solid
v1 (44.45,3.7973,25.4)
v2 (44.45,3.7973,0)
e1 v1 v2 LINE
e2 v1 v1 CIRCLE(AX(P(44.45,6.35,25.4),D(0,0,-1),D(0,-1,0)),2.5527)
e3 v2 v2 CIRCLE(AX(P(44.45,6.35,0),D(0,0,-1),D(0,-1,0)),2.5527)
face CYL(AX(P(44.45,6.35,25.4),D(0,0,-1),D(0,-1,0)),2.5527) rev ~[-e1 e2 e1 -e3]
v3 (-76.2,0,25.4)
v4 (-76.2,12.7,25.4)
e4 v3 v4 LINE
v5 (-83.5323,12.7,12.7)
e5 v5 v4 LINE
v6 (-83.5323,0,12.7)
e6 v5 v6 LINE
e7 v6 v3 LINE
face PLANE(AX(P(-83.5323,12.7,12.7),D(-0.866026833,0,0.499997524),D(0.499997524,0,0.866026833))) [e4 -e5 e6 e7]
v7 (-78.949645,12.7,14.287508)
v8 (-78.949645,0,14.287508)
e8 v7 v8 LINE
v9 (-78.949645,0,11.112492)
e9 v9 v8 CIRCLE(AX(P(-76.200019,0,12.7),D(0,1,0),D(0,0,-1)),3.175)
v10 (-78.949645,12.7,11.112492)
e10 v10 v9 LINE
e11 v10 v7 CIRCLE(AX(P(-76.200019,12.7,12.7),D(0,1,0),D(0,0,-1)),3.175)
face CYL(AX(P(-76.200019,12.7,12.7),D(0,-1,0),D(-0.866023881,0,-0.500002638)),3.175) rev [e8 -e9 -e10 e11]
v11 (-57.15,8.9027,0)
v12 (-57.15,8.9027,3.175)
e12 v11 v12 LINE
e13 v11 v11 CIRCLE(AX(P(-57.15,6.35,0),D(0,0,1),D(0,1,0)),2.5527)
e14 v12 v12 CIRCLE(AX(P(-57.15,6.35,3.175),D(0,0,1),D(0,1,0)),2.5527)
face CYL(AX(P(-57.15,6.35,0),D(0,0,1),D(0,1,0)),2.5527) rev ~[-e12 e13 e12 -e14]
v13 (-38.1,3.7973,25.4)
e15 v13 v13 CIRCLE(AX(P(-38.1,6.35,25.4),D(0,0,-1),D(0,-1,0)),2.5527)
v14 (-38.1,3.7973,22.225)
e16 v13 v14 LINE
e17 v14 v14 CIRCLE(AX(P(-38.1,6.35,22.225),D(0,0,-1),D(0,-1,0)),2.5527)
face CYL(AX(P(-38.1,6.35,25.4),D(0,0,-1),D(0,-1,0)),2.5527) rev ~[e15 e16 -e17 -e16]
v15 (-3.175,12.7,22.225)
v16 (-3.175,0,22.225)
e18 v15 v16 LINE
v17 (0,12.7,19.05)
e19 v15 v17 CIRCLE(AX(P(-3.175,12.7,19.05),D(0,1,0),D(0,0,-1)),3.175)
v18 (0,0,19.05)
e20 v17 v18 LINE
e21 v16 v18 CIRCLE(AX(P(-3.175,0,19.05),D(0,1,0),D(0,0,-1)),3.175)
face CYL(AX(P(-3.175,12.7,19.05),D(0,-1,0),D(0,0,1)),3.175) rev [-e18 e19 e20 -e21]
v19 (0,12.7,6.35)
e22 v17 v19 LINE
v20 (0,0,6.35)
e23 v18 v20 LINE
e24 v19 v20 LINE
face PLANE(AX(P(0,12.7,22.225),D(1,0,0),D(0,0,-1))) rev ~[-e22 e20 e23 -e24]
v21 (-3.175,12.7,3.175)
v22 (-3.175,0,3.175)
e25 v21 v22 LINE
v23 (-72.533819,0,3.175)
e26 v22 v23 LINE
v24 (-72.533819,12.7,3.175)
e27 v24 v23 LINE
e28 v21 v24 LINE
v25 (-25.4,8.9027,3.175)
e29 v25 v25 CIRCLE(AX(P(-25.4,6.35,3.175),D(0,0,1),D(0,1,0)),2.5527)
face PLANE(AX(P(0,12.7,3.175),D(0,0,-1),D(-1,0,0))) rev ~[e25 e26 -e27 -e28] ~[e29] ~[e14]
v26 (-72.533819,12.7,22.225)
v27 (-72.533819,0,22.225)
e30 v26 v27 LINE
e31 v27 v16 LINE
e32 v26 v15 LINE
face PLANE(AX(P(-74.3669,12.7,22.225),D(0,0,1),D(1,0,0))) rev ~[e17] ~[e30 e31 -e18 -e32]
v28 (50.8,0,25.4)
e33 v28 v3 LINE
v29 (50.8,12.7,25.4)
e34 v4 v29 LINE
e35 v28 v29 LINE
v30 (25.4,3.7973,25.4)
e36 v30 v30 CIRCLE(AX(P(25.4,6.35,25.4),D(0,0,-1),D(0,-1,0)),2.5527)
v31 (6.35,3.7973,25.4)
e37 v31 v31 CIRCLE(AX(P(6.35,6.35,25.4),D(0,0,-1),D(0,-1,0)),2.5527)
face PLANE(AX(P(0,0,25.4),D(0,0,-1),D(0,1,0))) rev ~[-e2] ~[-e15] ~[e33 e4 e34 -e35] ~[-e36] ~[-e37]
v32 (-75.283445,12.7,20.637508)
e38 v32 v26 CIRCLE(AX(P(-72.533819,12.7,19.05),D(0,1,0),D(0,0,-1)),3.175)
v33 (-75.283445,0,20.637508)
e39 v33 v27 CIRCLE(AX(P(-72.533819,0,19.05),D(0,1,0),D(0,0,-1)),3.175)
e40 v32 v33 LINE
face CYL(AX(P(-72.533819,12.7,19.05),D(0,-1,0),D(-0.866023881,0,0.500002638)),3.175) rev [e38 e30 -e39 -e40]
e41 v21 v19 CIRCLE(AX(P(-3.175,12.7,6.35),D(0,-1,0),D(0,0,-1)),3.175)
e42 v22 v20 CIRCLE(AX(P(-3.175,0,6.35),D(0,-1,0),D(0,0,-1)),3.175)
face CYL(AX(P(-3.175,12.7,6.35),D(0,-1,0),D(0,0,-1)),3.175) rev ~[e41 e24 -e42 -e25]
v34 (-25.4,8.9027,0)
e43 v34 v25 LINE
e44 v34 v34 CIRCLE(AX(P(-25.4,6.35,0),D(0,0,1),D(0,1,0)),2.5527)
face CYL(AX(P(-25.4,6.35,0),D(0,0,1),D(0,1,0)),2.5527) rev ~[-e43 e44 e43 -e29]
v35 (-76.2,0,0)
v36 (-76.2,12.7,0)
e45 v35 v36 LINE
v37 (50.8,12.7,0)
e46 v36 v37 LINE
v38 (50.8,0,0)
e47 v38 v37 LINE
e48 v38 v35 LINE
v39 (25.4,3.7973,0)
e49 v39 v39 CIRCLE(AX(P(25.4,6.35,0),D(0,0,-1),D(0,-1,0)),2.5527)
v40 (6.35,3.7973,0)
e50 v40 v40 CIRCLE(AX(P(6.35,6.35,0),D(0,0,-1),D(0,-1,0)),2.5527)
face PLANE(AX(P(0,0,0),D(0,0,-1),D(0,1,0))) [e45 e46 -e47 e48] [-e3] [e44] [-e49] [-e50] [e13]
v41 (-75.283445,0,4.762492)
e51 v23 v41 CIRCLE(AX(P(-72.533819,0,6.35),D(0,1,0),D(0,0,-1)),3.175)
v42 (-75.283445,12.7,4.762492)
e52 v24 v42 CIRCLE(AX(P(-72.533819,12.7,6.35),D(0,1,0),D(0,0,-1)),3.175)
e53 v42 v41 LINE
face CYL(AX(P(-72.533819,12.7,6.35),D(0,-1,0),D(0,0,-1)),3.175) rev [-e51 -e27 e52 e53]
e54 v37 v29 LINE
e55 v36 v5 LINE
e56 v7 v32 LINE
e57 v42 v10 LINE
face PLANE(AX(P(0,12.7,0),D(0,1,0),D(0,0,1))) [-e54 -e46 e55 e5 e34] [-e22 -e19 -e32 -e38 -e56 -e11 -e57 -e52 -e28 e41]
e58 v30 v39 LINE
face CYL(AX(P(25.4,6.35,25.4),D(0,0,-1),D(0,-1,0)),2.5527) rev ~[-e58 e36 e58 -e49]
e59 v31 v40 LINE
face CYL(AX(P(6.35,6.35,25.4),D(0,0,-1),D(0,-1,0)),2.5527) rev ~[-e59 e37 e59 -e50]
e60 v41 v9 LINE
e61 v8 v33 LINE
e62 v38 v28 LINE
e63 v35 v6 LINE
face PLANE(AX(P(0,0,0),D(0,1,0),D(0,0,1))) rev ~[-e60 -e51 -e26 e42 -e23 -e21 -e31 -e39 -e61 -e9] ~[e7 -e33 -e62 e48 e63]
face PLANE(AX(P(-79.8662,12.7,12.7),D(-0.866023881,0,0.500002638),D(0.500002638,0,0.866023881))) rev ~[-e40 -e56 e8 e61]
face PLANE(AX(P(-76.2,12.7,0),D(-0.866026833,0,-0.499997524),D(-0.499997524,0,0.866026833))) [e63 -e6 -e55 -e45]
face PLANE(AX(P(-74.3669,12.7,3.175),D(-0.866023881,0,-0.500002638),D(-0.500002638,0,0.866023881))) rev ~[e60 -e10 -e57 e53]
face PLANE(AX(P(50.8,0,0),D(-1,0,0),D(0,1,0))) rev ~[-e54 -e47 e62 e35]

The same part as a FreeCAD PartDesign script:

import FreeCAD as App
import Part
import Sketcher
Q = App.Units.Quantity


def edges_at(feature, points):
    """Names of the edges that pass closest to the given points."""
    edges = feature.Shape.Edges
    near = lambda p: min(range(len(edges)), key=lambda i: edges[i].distToShape(Part.Vertex(*p))[0])
    return sorted({f"Edge{near(p) + 1}" for p in points})

doc = App.newDocument("Part")
body = doc.addObject("PartDesign::Body", "Body")

# Sketch on XY plane
sketch1 = body.newObject("Sketcher::SketchObject", "Sketch")
sketch1.AttachmentSupport = (doc.getObject("XY_Plane"), [""])
sketch1.MapMode = "FlatFace"
sketch1.addGeometry(Part.LineSegment(App.Vector(0, 13, 0), App.Vector(0, 0, 0)), False)
sketch1.addGeometry(Part.LineSegment(App.Vector(0, 0, 0), App.Vector(51, 0, 0)), False)
sketch1.addGeometry(Part.LineSegment(App.Vector(51, 0, 0), App.Vector(51, 13, 0)), False)
sketch1.addGeometry(Part.LineSegment(App.Vector(51, 13, 0), App.Vector(0, 13, 0)), False)
sketch1.addConstraint(Sketcher.Constraint("Coincident", 0, 2, 1, 1))
sketch1.addConstraint(Sketcher.Constraint("Coincident", 1, 2, 2, 1))
sketch1.addConstraint(Sketcher.Constraint("Coincident", 2, 2, 3, 1))
sketch1.addConstraint(Sketcher.Constraint("Coincident", 3, 2, 0, 1))
sketch1.addConstraint(Sketcher.Constraint("Vertical", 0))
sketch1.addConstraint(Sketcher.Constraint("Horizontal", 1))
sketch1.addConstraint(Sketcher.Constraint("Vertical", 2))
sketch1.addConstraint(Sketcher.Constraint("Horizontal", 3))
sketch1.addConstraint(Sketcher.Constraint("Coincident", 0, 2, -1, 1))
sketch1.addConstraint(Sketcher.Constraint("DistanceX", 1, 1, 1, 2, Q("2 in")))
sketch1.addConstraint(Sketcher.Constraint("DistanceY", 0, 2, 0, 1, Q("0.5 in")))
pad1 = body.newObject("PartDesign::Pad", "Pad")
pad1.Profile = sketch1
pad1.Length = Q("1 in")

# Sketch on XY plane
sketch2 = body.newObject("Sketcher::SketchObject", "Sketch001")
sketch2.AttachmentSupport = (doc.getObject("XY_Plane"), [""])
sketch2.MapMode = "FlatFace"
sketch2.AttachmentOffset = App.Placement(App.Vector(0, 0, 1 * 25.4), App.Rotation())
sketch2.addGeometry(Part.Circle(App.Vector(25.4, 6.3, 0), App.Vector(0, 0, 1), 2.6), False)
sketch2.addGeometry(Part.Circle(App.Vector(6.3, 6.3, 0), App.Vector(0, 0, 1), 2.6), False)
sketch2.addGeometry(Part.Circle(App.Vector(44.5, 6.3, 0), App.Vector(0, 0, 1), 2.6), False)
sketch2.addConstraint(Sketcher.Constraint("Equal", 0, 1))
sketch2.addConstraint(Sketcher.Constraint("Equal", 1, 2))
sketch2.addConstraint(Sketcher.Constraint("Horizontal", 0, 3, 1, 3))
sketch2.addConstraint(Sketcher.Constraint("Horizontal", 1, 3, 2, 3))
sketch2.addConstraint(Sketcher.Constraint("Diameter", 0, Q("0.201 in")))
sketch2.addConstraint(Sketcher.Constraint("DistanceX", -1, 1, 0, 3, Q("1 in")))
sketch2.addConstraint(Sketcher.Constraint("DistanceX", 1, 3, 2, 3, Q("1.5 in")))
sketch2.addConstraint(Sketcher.Constraint("DistanceY", -1, 1, 0, 3, Q("0.25 in")))
sketch2.addConstraint(Sketcher.Constraint("DistanceX", -1, 1, 1, 3, Q("0.25 in")))
doc.recompute()
hole = body.newObject("PartDesign::Hole", "Hole")
hole.Profile = sketch2
hole.ThreadType = "None"
hole.Diameter = Q("0.201 in")
hole.DepthType = "ThroughAll"

# Sketch on YZ plane
sketch3 = body.newObject("Sketcher::SketchObject", "Sketch002")
sketch3.AttachmentSupport = (doc.getObject("YZ_Plane"), [""])
sketch3.MapMode = "FlatFace"
sketch3.addGeometry(Part.LineSegment(App.Vector(13, 0, 0), App.Vector(0, 0, 0)), False)
sketch3.addGeometry(Part.LineSegment(App.Vector(0, 0, 0), App.Vector(0, 25, 0)), False)
sketch3.addGeometry(Part.LineSegment(App.Vector(0, 25, 0), App.Vector(13, 25, 0)), False)
sketch3.addGeometry(Part.LineSegment(App.Vector(13, 25, 0), App.Vector(13, 0, 0)), False)
sketch3.addConstraint(Sketcher.Constraint("Coincident", 0, 2, 1, 1))
sketch3.addConstraint(Sketcher.Constraint("Coincident", 1, 2, 2, 1))
sketch3.addConstraint(Sketcher.Constraint("Coincident", 2, 2, 3, 1))
sketch3.addConstraint(Sketcher.Constraint("Coincident", 3, 2, 0, 1))
sketch3.addConstraint(Sketcher.Constraint("Horizontal", 0))
sketch3.addConstraint(Sketcher.Constraint("Vertical", 1))
sketch3.addConstraint(Sketcher.Constraint("Horizontal", 2))
sketch3.addConstraint(Sketcher.Constraint("Vertical", 3))
sketch3.addConstraint(Sketcher.Constraint("Coincident", 0, 2, -1, 1))
sketch3.addConstraint(Sketcher.Constraint("DistanceY", 1, 1, 1, 2, Q("1 in")))
sketch3.addConstraint(Sketcher.Constraint("DistanceX", 0, 2, 0, 1, Q("0.5 in")))
pad2 = body.newObject("PartDesign::Pad", "Pad001")
pad2.Profile = sketch3
pad2.Length = Q("3 in")
pad2.Reversed = True

# Sketch on XZ plane
sketch4 = body.newObject("Sketcher::SketchObject", "Sketch003")
sketch4.AttachmentSupport = (doc.getObject("XZ_Plane"), [""])
sketch4.MapMode = "FlatFace"
sketch4.AttachmentOffset = App.Placement(App.Vector(0, 0, -0.5 * 25.4), App.Rotation())
sketch4.addGeometry(Part.LineSegment(App.Vector(-76, 0, 0), App.Vector(-84, 13, 0)), False)
sketch4.addGeometry(Part.LineSegment(App.Vector(-84, 13, 0), App.Vector(-76, 25, 0)), False)
sketch4.addGeometry(Part.LineSegment(App.Vector(-76, 25, 0), App.Vector(-76, 0, 0)), False)
sketch4.addConstraint(Sketcher.Constraint("Coincident", 0, 2, 1, 1))
sketch4.addConstraint(Sketcher.Constraint("Coincident", 1, 2, 2, 1))
sketch4.addConstraint(Sketcher.Constraint("Coincident", 2, 2, 0, 1))
sketch4.addConstraint(Sketcher.Constraint("Vertical", 2))
sketch4.addConstraint(Sketcher.Constraint("PointOnObject", 2, 2, -1))
sketch4.addConstraint(Sketcher.Constraint("Equal", 0, 1))
sketch4.addConstraint(Sketcher.Constraint("DistanceY", 2, 2, 2, 1, Q("1 in")))
sketch4.addConstraint(Sketcher.Constraint("DistanceX", 1, 2, -1, 1, Q("3 in")))
sketch4.addConstraint(Sketcher.Constraint("Angle", 0, Q("119.9998 deg")))
pad3 = body.newObject("PartDesign::Pad", "Pad002")
pad3.Profile = sketch4
pad3.Length = Q("0.5 in")

# Sketch on XZ plane
sketch5 = body.newObject("Sketcher::SketchObject", "Sketch004")
sketch5.AttachmentSupport = (doc.getObject("XZ_Plane"), [""])
sketch5.MapMode = "FlatFace"
sketch5.AttachmentOffset = App.Placement(App.Vector(0, 0, -0.5 * 25.4), App.Rotation())
sketch5.addGeometry(Part.LineSegment(App.Vector(0, 3, 0), App.Vector(-74, 3, 0)), False)
sketch5.addGeometry(Part.LineSegment(App.Vector(-74, 3, 0), App.Vector(-80, 13, 0)), False)
sketch5.addGeometry(Part.LineSegment(App.Vector(-80, 13, 0), App.Vector(-74, 22, 0)), False)
sketch5.addGeometry(Part.LineSegment(App.Vector(-74, 22, 0), App.Vector(0, 22, 0)), False)
sketch5.addGeometry(Part.LineSegment(App.Vector(0, 22, 0), App.Vector(0, 3, 0)), False)
sketch5.addConstraint(Sketcher.Constraint("Coincident", 0, 2, 1, 1))
sketch5.addConstraint(Sketcher.Constraint("Coincident", 1, 2, 2, 1))
sketch5.addConstraint(Sketcher.Constraint("Coincident", 2, 2, 3, 1))
sketch5.addConstraint(Sketcher.Constraint("Coincident", 3, 2, 4, 1))
sketch5.addConstraint(Sketcher.Constraint("Coincident", 4, 2, 0, 1))
sketch5.addConstraint(Sketcher.Constraint("Horizontal", 0))
sketch5.addConstraint(Sketcher.Constraint("Horizontal", 3))
sketch5.addConstraint(Sketcher.Constraint("Vertical", 4))
sketch5.addConstraint(Sketcher.Constraint("PointOnObject", 3, 2, -2))
sketch5.addConstraint(Sketcher.Constraint("Vertical", 0, 2, 2, 2))
sketch5.addConstraint(Sketcher.Constraint("Equal", 1, 2))
sketch5.addConstraint(Sketcher.Constraint("DistanceY", -1, 1, 0, 2, Q("0.125 in")))
sketch5.addConstraint(Sketcher.Constraint("Angle", 1, Q("120.0002 deg")))
sketch5.addConstraint(Sketcher.Constraint("DistanceY", 4, 2, 4, 1, Q("0.75 in")))
sketch5.addConstraint(Sketcher.Constraint("DistanceX", 0, 2, 0, 1, Q("74.367 mm")))
pocket1 = body.newObject("PartDesign::Pocket", "Pocket")
pocket1.Profile = sketch5
pocket1.Type = "ThroughAll"
pocket1.Reversed = True

# Sketch on XY plane
sketch6 = body.newObject("Sketcher::SketchObject", "Sketch005")
sketch6.AttachmentSupport = (doc.getObject("XY_Plane"), [""])
sketch6.MapMode = "FlatFace"
sketch6.addGeometry(Part.Circle(App.Vector(-57.1, 6.3, 0), App.Vector(0, 0, 1), 2.6), False)
sketch6.addGeometry(Part.Circle(App.Vector(-25.4, 6.3, 0), App.Vector(0, 0, 1), 2.6), False)
sketch6.addConstraint(Sketcher.Constraint("Equal", 0, 1))
sketch6.addConstraint(Sketcher.Constraint("Horizontal", 0, 3, 1, 3))
sketch6.addConstraint(Sketcher.Constraint("Diameter", 0, Q("0.201 in")))
sketch6.addConstraint(Sketcher.Constraint("DistanceX", 1, 3, -1, 1, Q("1 in")))
sketch6.addConstraint(Sketcher.Constraint("DistanceX", 0, 3, -1, 1, Q("2.25 in")))
sketch6.addConstraint(Sketcher.Constraint("DistanceY", -1, 1, 0, 3, Q("0.25 in")))
doc.recompute()
hole2 = body.newObject("PartDesign::Hole", "Hole001")
hole2.Profile = sketch6
hole2.ThreadType = "None"
hole2.Diameter = Q("0.201 in")
hole2.DepthType = "Dimension"
hole2.Depth = Q("0.35 in")
hole2.DrillPoint = "Flat"
hole2.Reversed = True

# Sketch on XY plane
sketch7 = body.newObject("Sketcher::SketchObject", "Sketch006")
sketch7.AttachmentSupport = (doc.getObject("XY_Plane"), [""])
sketch7.MapMode = "FlatFace"
sketch7.AttachmentOffset = App.Placement(App.Vector(0, 0, 1 * 25.4), App.Rotation())
sketch7.addGeometry(Part.Circle(App.Vector(-38.1, 6.3, 0), App.Vector(0, 0, 1), 2.6), False)
sketch7.addConstraint(Sketcher.Constraint("Diameter", 0, Q("0.201 in")))
sketch7.addConstraint(Sketcher.Constraint("DistanceX", 0, 3, -1, 1, Q("1.5 in")))
sketch7.addConstraint(Sketcher.Constraint("DistanceY", -1, 1, 0, 3, Q("0.25 in")))
doc.recompute()
hole3 = body.newObject("PartDesign::Hole", "Hole002")
hole3.Profile = sketch7
hole3.ThreadType = "None"
hole3.Diameter = Q("0.201 in")
hole3.DepthType = "Dimension"
hole3.Depth = Q("0.65 in")
hole3.DrillPoint = "Flat"
doc.recompute()

fillet = body.newObject("PartDesign::Fillet", "Fillet")
fillet.Base = (hole3, edges_at(hole3, [
    (0, 6.35, 3.175),
    (0, 6.35, 22.225),
    (-74.367, 6.35, 3.175),
    (-79.866, 6.35, 12.7),
    (-74.367, 6.35, 22.225),
]))
fillet.Radius = Q("0.125 in")

doc.recompute()
